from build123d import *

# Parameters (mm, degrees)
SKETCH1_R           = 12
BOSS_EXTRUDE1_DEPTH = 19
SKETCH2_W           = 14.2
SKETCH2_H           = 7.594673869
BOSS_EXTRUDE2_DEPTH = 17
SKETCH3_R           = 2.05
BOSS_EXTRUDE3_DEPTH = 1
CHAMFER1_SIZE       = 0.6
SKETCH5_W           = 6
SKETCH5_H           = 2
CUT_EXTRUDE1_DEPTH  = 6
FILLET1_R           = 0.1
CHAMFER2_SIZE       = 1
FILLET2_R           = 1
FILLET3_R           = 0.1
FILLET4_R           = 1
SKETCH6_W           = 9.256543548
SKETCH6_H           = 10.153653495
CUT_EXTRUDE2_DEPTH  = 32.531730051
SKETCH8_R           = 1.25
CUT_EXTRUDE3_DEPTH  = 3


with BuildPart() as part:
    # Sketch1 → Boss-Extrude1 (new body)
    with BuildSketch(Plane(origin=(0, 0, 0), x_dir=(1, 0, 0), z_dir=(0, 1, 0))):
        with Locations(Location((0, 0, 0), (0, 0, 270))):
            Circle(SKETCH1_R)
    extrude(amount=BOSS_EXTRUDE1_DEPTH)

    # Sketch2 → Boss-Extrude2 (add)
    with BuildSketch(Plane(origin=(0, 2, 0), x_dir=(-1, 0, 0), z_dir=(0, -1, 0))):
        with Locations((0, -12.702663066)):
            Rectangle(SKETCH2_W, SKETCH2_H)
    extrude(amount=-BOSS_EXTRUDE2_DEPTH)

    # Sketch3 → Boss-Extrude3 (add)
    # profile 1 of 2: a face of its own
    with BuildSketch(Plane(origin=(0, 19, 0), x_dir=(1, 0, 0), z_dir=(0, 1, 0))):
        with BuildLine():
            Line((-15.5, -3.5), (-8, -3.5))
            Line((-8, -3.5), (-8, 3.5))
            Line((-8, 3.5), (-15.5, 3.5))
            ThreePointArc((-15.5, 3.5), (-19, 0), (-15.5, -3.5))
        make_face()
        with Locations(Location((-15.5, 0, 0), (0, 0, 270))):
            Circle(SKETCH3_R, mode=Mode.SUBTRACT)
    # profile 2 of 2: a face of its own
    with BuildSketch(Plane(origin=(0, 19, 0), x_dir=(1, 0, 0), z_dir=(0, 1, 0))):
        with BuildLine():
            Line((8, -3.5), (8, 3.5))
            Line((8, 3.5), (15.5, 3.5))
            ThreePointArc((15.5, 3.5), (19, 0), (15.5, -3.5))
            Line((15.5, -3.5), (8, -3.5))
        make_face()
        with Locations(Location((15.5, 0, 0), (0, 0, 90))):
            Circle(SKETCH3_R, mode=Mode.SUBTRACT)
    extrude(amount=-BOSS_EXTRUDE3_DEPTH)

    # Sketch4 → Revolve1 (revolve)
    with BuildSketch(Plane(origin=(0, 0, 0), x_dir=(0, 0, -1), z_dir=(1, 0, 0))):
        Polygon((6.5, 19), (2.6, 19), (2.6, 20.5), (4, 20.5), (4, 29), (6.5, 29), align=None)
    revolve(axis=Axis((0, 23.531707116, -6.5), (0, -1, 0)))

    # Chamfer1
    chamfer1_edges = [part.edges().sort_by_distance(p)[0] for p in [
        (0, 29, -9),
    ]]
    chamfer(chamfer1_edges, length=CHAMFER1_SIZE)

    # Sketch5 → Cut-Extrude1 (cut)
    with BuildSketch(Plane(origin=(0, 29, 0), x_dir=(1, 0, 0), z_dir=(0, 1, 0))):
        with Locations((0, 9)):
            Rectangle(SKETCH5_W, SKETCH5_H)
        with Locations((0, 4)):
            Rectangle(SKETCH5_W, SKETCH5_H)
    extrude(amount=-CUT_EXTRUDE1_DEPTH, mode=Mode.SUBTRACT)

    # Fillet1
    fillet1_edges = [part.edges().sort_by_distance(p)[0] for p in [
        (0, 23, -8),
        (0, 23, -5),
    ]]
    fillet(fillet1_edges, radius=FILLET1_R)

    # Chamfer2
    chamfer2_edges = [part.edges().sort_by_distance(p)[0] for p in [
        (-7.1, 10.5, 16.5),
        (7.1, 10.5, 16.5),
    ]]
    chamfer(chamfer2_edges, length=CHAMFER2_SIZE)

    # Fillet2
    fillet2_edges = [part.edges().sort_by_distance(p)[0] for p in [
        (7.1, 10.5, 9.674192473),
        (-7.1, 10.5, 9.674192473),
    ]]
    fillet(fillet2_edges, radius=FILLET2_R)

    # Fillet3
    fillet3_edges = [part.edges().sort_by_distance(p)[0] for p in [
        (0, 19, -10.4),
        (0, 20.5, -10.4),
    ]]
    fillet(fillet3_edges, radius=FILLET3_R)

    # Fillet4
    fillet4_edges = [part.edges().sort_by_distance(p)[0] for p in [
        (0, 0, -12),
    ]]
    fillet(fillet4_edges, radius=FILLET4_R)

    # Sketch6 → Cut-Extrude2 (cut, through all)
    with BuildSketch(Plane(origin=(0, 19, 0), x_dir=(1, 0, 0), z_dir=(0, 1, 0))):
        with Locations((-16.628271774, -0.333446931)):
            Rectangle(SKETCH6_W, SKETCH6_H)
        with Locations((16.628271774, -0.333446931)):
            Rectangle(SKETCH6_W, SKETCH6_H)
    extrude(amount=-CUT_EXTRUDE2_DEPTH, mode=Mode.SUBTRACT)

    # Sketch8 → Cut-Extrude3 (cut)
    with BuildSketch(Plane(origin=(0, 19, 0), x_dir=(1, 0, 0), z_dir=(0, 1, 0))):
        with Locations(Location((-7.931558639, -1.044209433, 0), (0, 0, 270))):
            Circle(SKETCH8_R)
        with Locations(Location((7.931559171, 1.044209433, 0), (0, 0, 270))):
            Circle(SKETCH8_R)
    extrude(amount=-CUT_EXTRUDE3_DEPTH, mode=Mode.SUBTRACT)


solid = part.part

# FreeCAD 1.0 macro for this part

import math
import FreeCAD as App
import Part
import Sketcher


def edges_at(feature, points):
    """Names of the edges that pass closest to the given points."""
    edges = feature.Shape.Edges
    near = lambda p: min(range(len(edges)), key=lambda i: edges[i].distToShape(Part.Vertex(*p))[0])
    return sorted({f"Edge{near(p) + 1}" for p in points})

doc = App.newDocument("Part")
body = doc.addObject("PartDesign::Body", "Body")

# Sketch on XZ plane
sketch1 = body.newObject("Sketcher::SketchObject", "Sketch")
sketch1.AttachmentSupport = (doc.getObject("XZ_Plane"), [""])
sketch1.MapMode = "FlatFace"
sketch1.addGeometry(Part.Circle(App.Vector(0, 0, 0), App.Vector(0, 0, 1), 12), False)
sketch1.addConstraint([
    Sketcher.Constraint("Coincident", 0, 3, -1, 1),
    Sketcher.Constraint("Diameter", 0, 24.0),
])
pad1 = body.newObject("PartDesign::Pad", "Pad")
pad1.Profile = sketch1
pad1.Length = 19
pad1.Reversed = True

# Sketch on XZ plane
sketch2 = body.newObject("Sketcher::SketchObject", "Sketch001")
sketch2.AttachmentSupport = (doc.getObject("XZ_Plane"), [""])
sketch2.MapMode = "FlatFace"
sketch2.AttachmentOffset = App.Placement(App.Vector(0, 0, -2), App.Rotation())
sketch2.addGeometry([
    Part.LineSegment(App.Vector(7.1, 8.905326, 0), App.Vector(7.1, 16.5, 0)),
    Part.LineSegment(App.Vector(7.1, 16.5, 0), App.Vector(-7.1, 16.5, 0)),
    Part.LineSegment(App.Vector(-7.1, 16.5, 0), App.Vector(-7.1, 8.905326, 0)),
    Part.LineSegment(App.Vector(-7.1, 8.905326, 0), App.Vector(7.1, 8.905326, 0)),
], False)
sketch2.addConstraint([
    Sketcher.Constraint("Coincident", 0, 2, 1, 1),
    Sketcher.Constraint("Coincident", 1, 2, 2, 1),
    Sketcher.Constraint("Coincident", 2, 2, 3, 1),
    Sketcher.Constraint("Coincident", 3, 2, 0, 1),
    Sketcher.Constraint("Vertical", 0),
    Sketcher.Constraint("Horizontal", 1),
    Sketcher.Constraint("Vertical", 2),
    Sketcher.Constraint("Horizontal", 3),
    Sketcher.Constraint("DistanceX", 1, 2, 1, 1, 14.2),
    Sketcher.Constraint("DistanceX", -1, 1, 0, 2, 7.1),
    Sketcher.Constraint("DistanceY", -1, 1, 0, 2, 16.5),
    Sketcher.Constraint("DistanceY", 0, 1, 0, 2, 7.594674),
])
pad2 = body.newObject("PartDesign::Pad", "Pad001")
pad2.Profile = sketch2
pad2.Length = 17
pad2.Reversed = True

# Sketch on XZ plane
sketch3 = body.newObject("Sketcher::SketchObject", "Sketch002")
sketch3.AttachmentSupport = (doc.getObject("XZ_Plane"), [""])
sketch3.MapMode = "FlatFace"
sketch3.AttachmentOffset = App.Placement(App.Vector(0, 0, -19), App.Rotation())
sketch3.addGeometry([
    Part.LineSegment(App.Vector(-15.5, 3.5, 0), App.Vector(-8, 3.5, 0)),  # 0
    Part.LineSegment(App.Vector(-8, 3.5, 0), App.Vector(-8, -3.5, 0)),  # 1
    Part.LineSegment(App.Vector(-8, -3.5, 0), App.Vector(-15.5, -3.5, 0)),  # 2
    Part.ArcOfCircle(Part.Circle(App.Vector(-15.5, 0, 0), App.Vector(0, 0, 1), 3.5), math.radians(90), math.radians(270)),  # 3
    Part.Circle(App.Vector(-15.5, 0, 0), App.Vector(0, 0, 1), 2.05),  # 4
    Part.LineSegment(App.Vector(8, -3.5, 0), App.Vector(8, 3.5, 0)),  # 5
    Part.LineSegment(App.Vector(8, 3.5, 0), App.Vector(15.5, 3.5, 0)),  # 6
    Part.ArcOfCircle(Part.Circle(App.Vector(15.5, 0, 0), App.Vector(0, 0, 1), 3.5), math.radians(-90), math.radians(90)),  # 7
    Part.LineSegment(App.Vector(15.5, -3.5, 0), App.Vector(8, -3.5, 0)),  # 8
    Part.Circle(App.Vector(15.5, 0, 0), App.Vector(0, 0, 1), 2.05),  # 9
], False)
sketch3.addConstraint([
    Sketcher.Constraint("Coincident", 0, 2, 1, 1),
    Sketcher.Constraint("Coincident", 1, 2, 2, 1),
    Sketcher.Constraint("Tangent", 2, 2, 3, 2),
    Sketcher.Constraint("Tangent", 3, 1, 0, 1),
    Sketcher.Constraint("Coincident", 5, 2, 6, 1),
    Sketcher.Constraint("Tangent", 6, 2, 7, 2),
    Sketcher.Constraint("Tangent", 7, 1, 8, 1),
    Sketcher.Constraint("Coincident", 8, 2, 5, 1),
    Sketcher.Constraint("Horizontal", 0),
    Sketcher.Constraint("Vertical", 1),
    Sketcher.Constraint("Horizontal", 2),
    Sketcher.Constraint("Vertical", 5),
    Sketcher.Constraint("Horizontal", 6),
    Sketcher.Constraint("Horizontal", 8),
    Sketcher.Constraint("Coincident", 4, 3, 3, 3),
    Sketcher.Constraint("Coincident", 9, 3, 7, 3),
    Sketcher.Constraint("Equal", 3, 7),
    Sketcher.Constraint("Equal", 4, 9),
    Sketcher.Constraint("Symmetric", 3, 3, 7, 3, -1, 1),
    Sketcher.Constraint("Symmetric", 0, 2, 5, 2, -2),
    Sketcher.Constraint("Diameter", 4, 4.1),
    Sketcher.Constraint("Radius", 3, 3.5),
    Sketcher.Constraint("DistanceX", 0, 1, 0, 2, 7.5),
    Sketcher.Constraint("DistanceX", 0, 2, -1, 1, 8.0),
])
pad3 = body.newObject("PartDesign::Pad", "Pad002")
pad3.Profile = sketch3
pad3.Length = 1

# Sketch on YZ plane
sketch4 = body.newObject("Sketcher::SketchObject", "Sketch003")
sketch4.AttachmentSupport = (doc.getObject("YZ_Plane"), [""])
sketch4.MapMode = "FlatFace"
sketch4.addGeometry([
    Part.LineSegment(App.Vector(19, -2.6, 0), App.Vector(19, -6.5, 0)),  # 0
    Part.LineSegment(App.Vector(19, -6.5, 0), App.Vector(29, -6.5, 0)),  # 1
    Part.LineSegment(App.Vector(29, -6.5, 0), App.Vector(29, -4, 0)),  # 2
    Part.LineSegment(App.Vector(29, -4, 0), App.Vector(20.5, -4, 0)),  # 3
    Part.LineSegment(App.Vector(20.5, -4, 0), App.Vector(20.5, -2.6, 0)),  # 4
    Part.LineSegment(App.Vector(20.5, -2.6, 0), App.Vector(19, -2.6, 0)),  # 5
], False)
sketch4.addGeometry(Part.LineSegment(App.Vector(29, -6.5, 0), App.Vector(19, -6.5, 0)), True)  # axis
sketch4.addConstraint([
    Sketcher.Constraint("Coincident", 0, 2, 1, 1),
    Sketcher.Constraint("Coincident", 1, 2, 2, 1),
    Sketcher.Constraint("Coincident", 2, 2, 3, 1),
    Sketcher.Constraint("Coincident", 3, 2, 4, 1),
    Sketcher.Constraint("Coincident", 4, 2, 5, 1),
    Sketcher.Constraint("Coincident", 5, 2, 0, 1),
    Sketcher.Constraint("Vertical", 0),
    Sketcher.Constraint("Horizontal", 1),
    Sketcher.Constraint("Vertical", 2),
    Sketcher.Constraint("Horizontal", 3),
    Sketcher.Constraint("Vertical", 4),
    Sketcher.Constraint("Horizontal", 5),
    Sketcher.Constraint("Horizontal", 6),
    Sketcher.Constraint("Coincident", 6, 1, 1, 2),
    Sketcher.Constraint("Vertical", 5, 2, 6, 2),
    Sketcher.Constraint("DistanceX", 1, 1, 1, 2, 10.0),
    Sketcher.Constraint("DistanceX", 3, 2, 3, 1, 8.5),
    Sketcher.Constraint("DistanceY", 0, 2, 0, 1, 3.9),
    Sketcher.Constraint("DistanceY", 2, 1, 2, 2, 2.5),
    Sketcher.Constraint("DistanceX", -1, 1, 0, 2, 19.0),
    Sketcher.Constraint("DistanceY", 2, 2, -1, 1, 4.0),
])
revolution = body.newObject("PartDesign::Revolution", "Revolution")
revolution.Profile = sketch4
revolution.ReferenceAxis = (sketch4, ["Axis0"])
revolution.Angle = 360
doc.recompute()

chamfer = body.newObject("PartDesign::Chamfer", "Chamfer")
chamfer.Base = (revolution, edges_at(revolution, [(0, 29, -9)]))
chamfer.Size = 0.6

# Sketch on XZ plane
sketch5 = body.newObject("Sketcher::SketchObject", "Sketch004")
sketch5.AttachmentSupport = (doc.getObject("XZ_Plane"), [""])
sketch5.MapMode = "FlatFace"
sketch5.AttachmentOffset = App.Placement(App.Vector(0, 0, -29), App.Rotation())
sketch5.addGeometry([
    Part.LineSegment(App.Vector(-3, -10, 0), App.Vector(-3, -8, 0)),  # 0
    Part.LineSegment(App.Vector(-3, -8, 0), App.Vector(3, -8, 0)),  # 1
    Part.LineSegment(App.Vector(3, -8, 0), App.Vector(3, -10, 0)),  # 2
    Part.LineSegment(App.Vector(3, -10, 0), App.Vector(-3, -10, 0)),  # 3
    Part.LineSegment(App.Vector(-3, -5, 0), App.Vector(-3, -3, 0)),  # 4
    Part.LineSegment(App.Vector(-3, -3, 0), App.Vector(3, -3, 0)),  # 5
    Part.LineSegment(App.Vector(3, -3, 0), App.Vector(3, -5, 0)),  # 6
    Part.LineSegment(App.Vector(3, -5, 0), App.Vector(-3, -5, 0)),  # 7
], False)
sketch5.addConstraint([
    Sketcher.Constraint("Coincident", 0, 2, 1, 1),
    Sketcher.Constraint("Coincident", 1, 2, 2, 1),
    Sketcher.Constraint("Coincident", 2, 2, 3, 1),
    Sketcher.Constraint("Coincident", 3, 2, 0, 1),
    Sketcher.Constraint("Coincident", 4, 2, 5, 1),
    Sketcher.Constraint("Coincident", 5, 2, 6, 1),
    Sketcher.Constraint("Coincident", 6, 2, 7, 1),
    Sketcher.Constraint("Coincident", 7, 2, 4, 1),
    Sketcher.Constraint("Vertical", 0),
    Sketcher.Constraint("Horizontal", 1),
    Sketcher.Constraint("Vertical", 2),
    Sketcher.Constraint("Horizontal", 3),
    Sketcher.Constraint("Vertical", 4),
    Sketcher.Constraint("Horizontal", 5),
    Sketcher.Constraint("Vertical", 6),
    Sketcher.Constraint("Horizontal", 7),
    Sketcher.Constraint("Vertical", 3, 2, 4, 2),
    Sketcher.Constraint("Vertical", 2, 2, 5, 2),
    Sketcher.Constraint("Equal", 2, 4),
    Sketcher.Constraint("DistanceX", 1, 1, 1, 2, 6.0),
    Sketcher.Constraint("DistanceY", 0, 1, 0, 2, 2.0),
    Sketcher.Constraint("DistanceX", 0, 2, -1, 1, 3.0),
    Sketcher.Constraint("DistanceY", 0, 2, -1, 1, 8.0),
    Sketcher.Constraint("DistanceY", 4, 2, -1, 1, 3.0),
])
pocket1 = body.newObject("PartDesign::Pocket", "Pocket")
pocket1.Profile = sketch5
pocket1.Length = 6
pocket1.Reversed = True
doc.recompute()

fillet = body.newObject("PartDesign::Fillet", "Fillet")
fillet.Base = (pocket1, edges_at(pocket1, [(0, 23, -8), (0, 23, -5)]))
fillet.Radius = 0.1
doc.recompute()

chamfer2 = body.newObject("PartDesign::Chamfer", "Chamfer001")
chamfer2.Base = (fillet, edges_at(fillet, [(-7.1, 10.5, 16.5), (7.1, 10.5, 16.5)]))
chamfer2.Size = 1
doc.recompute()

fillet2 = body.newObject("PartDesign::Fillet", "Fillet001")
fillet2.Base = (chamfer2, edges_at(chamfer2, [(7.1, 10.5, 9.674), (-7.1, 10.5, 9.674)]))
fillet2.Radius = 1
doc.recompute()

fillet3 = body.newObject("PartDesign::Fillet", "Fillet002")
fillet3.Base = (fillet2, edges_at(fillet2, [(0, 19, -10.4), (0, 20.5, -10.4)]))
fillet3.Radius = 0.1
doc.recompute()

fillet4 = body.newObject("PartDesign::Fillet", "Fillet003")
fillet4.Base = (fillet3, edges_at(fillet3, [(0, 0, -12)]))
fillet4.Radius = 1

# Sketch on XZ plane
sketch6 = body.newObject("Sketcher::SketchObject", "Sketch005")
sketch6.AttachmentSupport = (doc.getObject("XZ_Plane"), [""])
sketch6.MapMode = "FlatFace"
sketch6.AttachmentOffset = App.Placement(App.Vector(0, 0, -19), App.Rotation())
sketch6.addGeometry([
    Part.LineSegment(App.Vector(-21.256544, -4.74338, 0), App.Vector(-21.256544, 5.410274, 0)),  # 0
    Part.LineSegment(App.Vector(-21.256544, 5.410274, 0), App.Vector(-12, 5.410274, 0)),  # 1
    Part.LineSegment(App.Vector(-12, 5.410274, 0), App.Vector(-12, -4.74338, 0)),  # 2
    Part.LineSegment(App.Vector(-12, -4.74338, 0), App.Vector(-21.256544, -4.74338, 0)),  # 3
    Part.LineSegment(App.Vector(12, -4.74338, 0), App.Vector(12, 5.410274, 0)),  # 4
    Part.LineSegment(App.Vector(12, 5.410274, 0), App.Vector(21.256544, 5.410274, 0)),  # 5
    Part.LineSegment(App.Vector(21.256544, 5.410274, 0), App.Vector(21.256544, -4.74338, 0)),  # 6
    Part.LineSegment(App.Vector(21.256544, -4.74338, 0), App.Vector(12, -4.74338, 0)),  # 7
], False)
sketch6.addConstraint([
    Sketcher.Constraint("Coincident", 0, 2, 1, 1),
    Sketcher.Constraint("Coincident", 1, 2, 2, 1),
    Sketcher.Constraint("Coincident", 2, 2, 3, 1),
    Sketcher.Constraint("Coincident", 3, 2, 0, 1),
    Sketcher.Constraint("Coincident", 4, 2, 5, 1),
    Sketcher.Constraint("Coincident", 5, 2, 6, 1),
    Sketcher.Constraint("Coincident", 6, 2, 7, 1),
    Sketcher.Constraint("Coincident", 7, 2, 4, 1),
    Sketcher.Constraint("Vertical", 0),
    Sketcher.Constraint("Horizontal", 1),
    Sketcher.Constraint("Vertical", 2),
    Sketcher.Constraint("Horizontal", 3),
    Sketcher.Constraint("Vertical", 4),
    Sketcher.Constraint("Horizontal", 5),
    Sketcher.Constraint("Vertical", 6),
    Sketcher.Constraint("Horizontal", 7),
    Sketcher.Constraint("Symmetric", 1, 2, 4, 2, -2),
    Sketcher.Constraint("Symmetric", 3, 2, 6, 2, -2),
    Sketcher.Constraint("DistanceX", 1, 2, -1, 1, 12.0),
    Sketcher.Constraint("DistanceX", 1, 1, 1, 2, 9.256544),
    Sketcher.Constraint("DistanceY", 0, 1, 0, 2, 10.153653),
    Sketcher.Constraint("DistanceY", 2, 2, -1, 1, 4.74338),
])
pocket2 = body.newObject("PartDesign::Pocket", "Pocket001")
pocket2.Profile = sketch6
pocket2.Type = "ThroughAll"
pocket2.Reversed = True

# Sketch on XZ plane
sketch7 = body.newObject("Sketcher::SketchObject", "Sketch006")
sketch7.AttachmentSupport = (doc.getObject("XZ_Plane"), [""])
sketch7.MapMode = "FlatFace"
sketch7.AttachmentOffset = App.Placement(App.Vector(0, 0, -19), App.Rotation())
sketch7.addGeometry([
    Part.Circle(App.Vector(-7.931559, 1.044209, 0), App.Vector(0, 0, 1), 1.25),
    Part.Circle(App.Vector(7.931559, -1.044209, 0), App.Vector(0, 0, 1), 1.25),
], False)
sketch7.addConstraint([
    Sketcher.Constraint("Equal", 0, 1),
    Sketcher.Constraint("Symmetric", 0, 3, 1, 3, -1, 1),
    Sketcher.Constraint("Diameter", 0, 2.5),
    Sketcher.Constraint("DistanceX", 0, 3, -1, 1, 7.931559),
    Sketcher.Constraint("DistanceY", -1, 1, 0, 3, 1.044209),
])
pocket3 = body.newObject("PartDesign::Pocket", "Pocket002")
pocket3.Profile = sketch7
pocket3.Length = 3
pocket3.Reversed = True

doc.recompute()
